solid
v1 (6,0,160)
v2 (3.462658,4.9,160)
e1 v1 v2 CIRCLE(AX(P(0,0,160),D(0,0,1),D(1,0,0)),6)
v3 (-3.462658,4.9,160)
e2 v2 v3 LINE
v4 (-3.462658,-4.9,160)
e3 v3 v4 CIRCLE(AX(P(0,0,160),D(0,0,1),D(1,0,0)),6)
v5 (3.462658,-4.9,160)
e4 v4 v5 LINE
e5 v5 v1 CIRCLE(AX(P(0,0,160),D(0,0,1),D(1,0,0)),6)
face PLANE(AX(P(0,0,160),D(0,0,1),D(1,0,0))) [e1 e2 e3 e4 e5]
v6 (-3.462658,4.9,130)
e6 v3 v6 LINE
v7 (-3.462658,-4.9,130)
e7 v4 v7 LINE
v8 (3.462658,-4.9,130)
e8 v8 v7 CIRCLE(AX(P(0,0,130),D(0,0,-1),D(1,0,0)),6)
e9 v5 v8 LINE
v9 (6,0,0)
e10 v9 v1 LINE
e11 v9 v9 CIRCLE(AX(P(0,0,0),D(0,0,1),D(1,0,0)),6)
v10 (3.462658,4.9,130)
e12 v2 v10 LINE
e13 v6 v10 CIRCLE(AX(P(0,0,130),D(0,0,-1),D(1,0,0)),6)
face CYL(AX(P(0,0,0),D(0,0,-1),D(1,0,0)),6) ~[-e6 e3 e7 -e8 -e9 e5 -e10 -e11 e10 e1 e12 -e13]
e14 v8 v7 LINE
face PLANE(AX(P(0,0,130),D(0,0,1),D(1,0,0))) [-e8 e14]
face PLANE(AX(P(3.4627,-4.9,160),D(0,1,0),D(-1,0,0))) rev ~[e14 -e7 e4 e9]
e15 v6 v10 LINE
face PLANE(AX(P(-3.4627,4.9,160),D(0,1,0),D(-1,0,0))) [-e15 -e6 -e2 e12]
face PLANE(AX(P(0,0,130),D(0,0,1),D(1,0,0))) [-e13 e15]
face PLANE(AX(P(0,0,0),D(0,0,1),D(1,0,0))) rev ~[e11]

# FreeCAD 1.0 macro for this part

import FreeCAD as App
import Part
import Sketcher


def add_polygon(sketch, points):
    """Adds a closed chain of lines whose ends are joined by coincident constraints."""
    first, n = sketch.GeometryCount, len(points)
    for a, b in zip(points, points[1:] + points[:1]):
        sketch.addGeometry(Part.LineSegment(App.Vector(*a, 0), App.Vector(*b, 0)), False)
    for i in range(n):
        sketch.addConstraint(Sketcher.Constraint("Coincident", first + i, 2, first + (i + 1) % n, 1))

doc = App.newDocument("Part")
body = doc.addObject("PartDesign::Body", "Body")

# Sketch on XY plane
sketch1 = doc.addObject("Sketcher::SketchObject", "Sketch")
body.addObject(sketch1)
sketch1.AttachmentSupport = (doc.XY_Plane, [""])
sketch1.MapMode = "FlatFace"
sketch1.addGeometry(Part.Circle(App.Vector(0, 0, 0), App.Vector(0, 0, 1), 6), False)
sketch1.addConstraint([
    Sketcher.Constraint("Coincident", 0, 3, -1, 1),
    Sketcher.Constraint("Diameter", 0, 12.0),
])
pad1 = doc.addObject("PartDesign::Pad", "Pad")
body.addObject(pad1)
pad1.Profile = sketch1
pad1.Length = 160

# Sketch on XY plane
sketch2 = doc.addObject("Sketcher::SketchObject", "Sketch001")
body.addObject(sketch2)
sketch2.AttachmentSupport = (doc.XY_Plane, [""])
sketch2.MapMode = "FlatFace"
sketch2.AttachmentOffset = App.Placement(App.Vector(0, 0, 160), App.Rotation())
add_polygon(sketch2, [(-4.2, 4.9), (4.1, 4.9), (4.1, 7), (-4.2, 7)])  # lines 0-3
add_polygon(sketch2, [(4.2, -4.9), (-3.9, -4.9), (-3.9, -6.8), (4.2, -6.8)])  # lines 4-7
sketch2.addConstraint([
    Sketcher.Constraint("Horizontal", 0),
    Sketcher.Constraint("Vertical", 1),
    Sketcher.Constraint("Horizontal", 2),
    Sketcher.Constraint("Vertical", 3),
    Sketcher.Constraint("Horizontal", 4),
    Sketcher.Constraint("Vertical", 5),
    Sketcher.Constraint("Horizontal", 6),
    Sketcher.Constraint("Vertical", 7),
    Sketcher.Constraint("DistanceY", -1, 1, 0, 2, 4.9),
    Sketcher.Constraint("DistanceY", 4, 2, -1, 1, 4.9),
    Sketcher.Constraint("DistanceX", 0, 1, 0, 2, 8.2595),
    Sketcher.Constraint("DistanceX", 4, 2, 4, 1, 8.1824),
    Sketcher.Constraint("DistanceY", 1, 1, 1, 2, 2.1025),
    Sketcher.Constraint("DistanceY", 5, 2, 5, 1, 1.8965),
    Sketcher.Constraint("DistanceX", 2, 2, -1, 1, 4.173),
    Sketcher.Constraint("DistanceX", 3, 2, 4, 2, 0.226),
])
pocket1 = doc.addObject("PartDesign::Pocket", "Pocket")
body.addObject(pocket1)
pocket1.Profile = sketch2
pocket1.Length = 30

doc.recompute()
